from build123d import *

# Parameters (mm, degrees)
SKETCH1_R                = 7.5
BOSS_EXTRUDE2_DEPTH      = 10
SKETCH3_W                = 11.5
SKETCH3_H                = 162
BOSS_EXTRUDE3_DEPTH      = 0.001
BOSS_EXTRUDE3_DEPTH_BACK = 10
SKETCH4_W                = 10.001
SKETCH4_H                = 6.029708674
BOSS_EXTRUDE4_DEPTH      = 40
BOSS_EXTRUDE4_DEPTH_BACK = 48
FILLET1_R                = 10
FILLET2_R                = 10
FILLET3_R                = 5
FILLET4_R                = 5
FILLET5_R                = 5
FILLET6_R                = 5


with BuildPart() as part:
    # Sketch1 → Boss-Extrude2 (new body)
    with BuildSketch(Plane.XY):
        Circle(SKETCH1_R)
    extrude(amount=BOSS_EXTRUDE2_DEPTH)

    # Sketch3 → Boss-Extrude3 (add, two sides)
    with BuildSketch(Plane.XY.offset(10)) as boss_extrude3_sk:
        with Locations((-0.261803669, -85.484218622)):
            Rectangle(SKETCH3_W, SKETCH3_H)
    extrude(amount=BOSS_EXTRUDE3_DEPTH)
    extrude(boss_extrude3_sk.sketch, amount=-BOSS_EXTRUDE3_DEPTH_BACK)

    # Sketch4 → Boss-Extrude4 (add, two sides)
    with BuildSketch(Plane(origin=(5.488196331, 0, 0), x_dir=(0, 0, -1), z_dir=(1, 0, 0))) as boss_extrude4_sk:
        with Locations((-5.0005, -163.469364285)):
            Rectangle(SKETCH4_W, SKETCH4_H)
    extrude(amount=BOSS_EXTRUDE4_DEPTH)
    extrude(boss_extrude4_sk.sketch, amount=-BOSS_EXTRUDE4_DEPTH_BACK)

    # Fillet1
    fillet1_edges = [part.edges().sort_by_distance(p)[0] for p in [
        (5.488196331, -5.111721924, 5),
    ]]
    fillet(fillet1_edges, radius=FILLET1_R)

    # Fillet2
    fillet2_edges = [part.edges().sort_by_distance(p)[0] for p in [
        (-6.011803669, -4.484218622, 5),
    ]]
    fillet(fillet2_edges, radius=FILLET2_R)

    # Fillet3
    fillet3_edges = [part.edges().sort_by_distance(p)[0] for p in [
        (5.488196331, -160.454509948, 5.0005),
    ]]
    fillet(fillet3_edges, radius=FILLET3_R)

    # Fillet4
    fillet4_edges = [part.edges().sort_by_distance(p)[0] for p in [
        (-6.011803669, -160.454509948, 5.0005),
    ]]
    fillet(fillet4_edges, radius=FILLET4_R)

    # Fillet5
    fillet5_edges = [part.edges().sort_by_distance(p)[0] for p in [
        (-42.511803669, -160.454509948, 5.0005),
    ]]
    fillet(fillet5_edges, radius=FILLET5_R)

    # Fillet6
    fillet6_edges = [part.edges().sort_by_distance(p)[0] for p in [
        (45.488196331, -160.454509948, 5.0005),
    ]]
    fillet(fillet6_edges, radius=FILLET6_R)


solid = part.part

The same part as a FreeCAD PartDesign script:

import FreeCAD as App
import Part
import Sketcher
from FreeCAD import Vector


def edges_at(feature, points):
    """Names of the edges that pass closest to the given points."""
    edges = feature.Shape.Edges
    near = lambda p: min(range(len(edges)), key=lambda i: edges[i].distToShape(Part.Vertex(*p))[0])
    return sorted({f"Edge{near(p) + 1}" for p in points})

doc = App.newDocument("Part")
body = doc.addObject("PartDesign::Body", "Body")

# Sketch on XY plane
sketch1 = body.newObject("Sketcher::SketchObject", "Sketch")
sketch1.AttachmentSupport = (doc.getObject("XY_Plane"), [""])
sketch1.MapMode = "FlatFace"
sketch1.addGeometry(Part.Circle(Vector(0, 0, 0), Vector(0, 0, 1), 8), False)
sketch1.addConstraint([
    Sketcher.Constraint("Coincident", 0, 3, -1, 1),
    Sketcher.Constraint("Diameter", 0, 15.0),
])
pad1 = body.newObject("PartDesign::Pad", "Pad")
pad1.Profile = sketch1
pad1.Length = 10

# Sketch on XY plane
sketch2 = body.newObject("Sketcher::SketchObject", "Sketch001")
sketch2.AttachmentSupport = (doc.getObject("XY_Plane"), [""])
sketch2.MapMode = "FlatFace"
sketch2.AttachmentOffset = App.Placement(Vector(0, 0, 10), App.Rotation())
sketch2.addGeometry([
    Part.LineSegment(Vector(-6, -4, 0), Vector(-6, -166, 0)),
    Part.LineSegment(Vector(-6, -166, 0), Vector(5, -166, 0)),
    Part.LineSegment(Vector(5, -166, 0), Vector(5, -4, 0)),
    Part.LineSegment(Vector(5, -4, 0), Vector(-6, -4, 0)),
], False)
sketch2.addConstraint([
    Sketcher.Constraint("Coincident", 0, 2, 1, 1),
    Sketcher.Constraint("Coincident", 1, 2, 2, 1),
    Sketcher.Constraint("Coincident", 2, 2, 3, 1),
    Sketcher.Constraint("Coincident", 3, 2, 0, 1),
    Sketcher.Constraint("Vertical", 0),
    Sketcher.Constraint("Horizontal", 1),
    Sketcher.Constraint("Vertical", 2),
    Sketcher.Constraint("Horizontal", 3),
    Sketcher.Constraint("DistanceY", 0, 2, 0, 1, 162.0),
    Sketcher.Constraint("DistanceX", 1, 1, 1, 2, 11.5),
    Sketcher.Constraint("DistanceY", 0, 2, -1, 1, 166.484219),
    Sketcher.Constraint("DistanceX", 0, 2, -1, 1, 6.011804),
])
pad2 = body.newObject("PartDesign::Pad", "Pad001")
pad2.Profile = sketch2
pad2.Type = "TwoLengths"
pad2.Length = 0.001
pad2.Length2 = 10

# Sketch on YZ plane
sketch3 = body.newObject("Sketcher::SketchObject", "Sketch002")
sketch3.AttachmentSupport = (doc.getObject("YZ_Plane"), [""])
sketch3.MapMode = "FlatFace"
sketch3.AttachmentOffset = App.Placement(Vector(0, 0, 5.488196), App.Rotation())
sketch3.addGeometry([
    Part.LineSegment(Vector(-160, 10, 0), Vector(-166, 10, 0)),
    Part.LineSegment(Vector(-166, 10, 0), Vector(-166, 0, 0)),
    Part.LineSegment(Vector(-166, 0, 0), Vector(-160, 0, 0)),
    Part.LineSegment(Vector(-160, 0, 0), Vector(-160, 10, 0)),
], False)
sketch3.addConstraint([
    Sketcher.Constraint("Coincident", 0, 2, 1, 1),
    Sketcher.Constraint("Coincident", 1, 2, 2, 1),
    Sketcher.Constraint("Coincident", 2, 2, 3, 1),
    Sketcher.Constraint("Coincident", 3, 2, 0, 1),
    Sketcher.Constraint("Horizontal", 0),
    Sketcher.Constraint("Vertical", 1),
    Sketcher.Constraint("Horizontal", 2),
    Sketcher.Constraint("Vertical", 3),
    Sketcher.Constraint("PointOnObject", 1, 2, -1),
    Sketcher.Constraint("DistanceY", 1, 2, 1, 1, 10.001),
    Sketcher.Constraint("DistanceX", 0, 2, 0, 1, 6.029709),
    Sketcher.Constraint("DistanceX", 0, 2, -1, 1, 166.484219),
])
pad3 = body.newObject("PartDesign::Pad", "Pad002")
pad3.Profile = sketch3
pad3.Type = "TwoLengths"
pad3.Length = 40
pad3.Length2 = 48
doc.recompute()

fillet = body.newObject("PartDesign::Fillet", "Fillet")
fillet.Base = (pad3, edges_at(pad3, [(5.488, -5.112, 5)]))
fillet.Radius = 10
doc.recompute()

fillet2 = body.newObject("PartDesign::Fillet", "Fillet001")
fillet2.Base = (fillet, edges_at(fillet, [(-6.012, -4.484, 5)]))
fillet2.Radius = 10
doc.recompute()

fillet3 = body.newObject("PartDesign::Fillet", "Fillet002")
fillet3.Base = (fillet2, edges_at(fillet2, [(5.488, -160.455, 5)]))
fillet3.Radius = 5
doc.recompute()

fillet4 = body.newObject("PartDesign::Fillet", "Fillet003")
fillet4.Base = (fillet3, edges_at(fillet3, [(-6.012, -160.455, 5)]))
fillet4.Radius = 5
doc.recompute()

fillet5 = body.newObject("PartDesign::Fillet", "Fillet004")
fillet5.Base = (fillet4, edges_at(fillet4, [(-42.512, -160.455, 5)]))
fillet5.Radius = 5
doc.recompute()

fillet6 = body.newObject("PartDesign::Fillet", "Fillet005")
fillet6.Base = (fillet5, edges_at(fillet5, [(45.488, -160.455, 5)]))
fillet6.Radius = 5

doc.recompute()
